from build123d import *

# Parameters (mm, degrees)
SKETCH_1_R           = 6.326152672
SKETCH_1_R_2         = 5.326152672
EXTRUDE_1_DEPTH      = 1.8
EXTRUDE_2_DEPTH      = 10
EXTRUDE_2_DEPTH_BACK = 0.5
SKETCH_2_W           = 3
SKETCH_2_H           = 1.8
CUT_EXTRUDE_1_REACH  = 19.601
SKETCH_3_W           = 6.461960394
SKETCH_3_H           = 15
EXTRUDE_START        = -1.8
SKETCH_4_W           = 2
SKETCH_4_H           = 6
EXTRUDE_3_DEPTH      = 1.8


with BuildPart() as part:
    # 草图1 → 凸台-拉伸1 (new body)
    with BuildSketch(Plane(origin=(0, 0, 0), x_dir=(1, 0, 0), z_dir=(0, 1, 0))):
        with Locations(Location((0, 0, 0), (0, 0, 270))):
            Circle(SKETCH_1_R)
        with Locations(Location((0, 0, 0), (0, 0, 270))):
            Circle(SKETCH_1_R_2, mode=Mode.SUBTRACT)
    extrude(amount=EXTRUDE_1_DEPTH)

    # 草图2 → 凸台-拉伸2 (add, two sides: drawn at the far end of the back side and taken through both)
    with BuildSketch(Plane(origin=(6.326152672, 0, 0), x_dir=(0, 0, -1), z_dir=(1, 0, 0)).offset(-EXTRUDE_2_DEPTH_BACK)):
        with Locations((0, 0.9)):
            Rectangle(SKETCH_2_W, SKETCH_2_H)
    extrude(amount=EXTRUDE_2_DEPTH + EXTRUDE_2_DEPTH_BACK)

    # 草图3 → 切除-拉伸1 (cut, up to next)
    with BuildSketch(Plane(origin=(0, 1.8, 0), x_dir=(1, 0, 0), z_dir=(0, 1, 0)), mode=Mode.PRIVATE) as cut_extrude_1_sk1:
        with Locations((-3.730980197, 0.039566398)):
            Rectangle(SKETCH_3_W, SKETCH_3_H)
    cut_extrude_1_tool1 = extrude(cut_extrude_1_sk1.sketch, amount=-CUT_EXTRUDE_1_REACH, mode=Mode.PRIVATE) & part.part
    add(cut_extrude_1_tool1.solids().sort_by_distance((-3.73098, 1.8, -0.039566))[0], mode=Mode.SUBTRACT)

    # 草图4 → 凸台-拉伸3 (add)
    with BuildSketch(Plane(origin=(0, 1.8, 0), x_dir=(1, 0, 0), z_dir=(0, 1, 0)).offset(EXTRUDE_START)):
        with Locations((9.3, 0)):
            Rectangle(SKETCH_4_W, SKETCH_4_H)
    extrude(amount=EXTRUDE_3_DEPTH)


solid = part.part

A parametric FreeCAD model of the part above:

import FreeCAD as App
import Part
import Sketcher

V = App.Vector


def add_polygon(sketch, points):
    """Adds a closed chain of lines whose ends are joined by coincident constraints."""
    first, n = sketch.GeometryCount, len(points)
    for a, b in zip(points, points[1:] + points[:1]):
        sketch.addGeometry(Part.LineSegment(App.Vector(*a, 0), App.Vector(*b, 0)), False)
    for i in range(n):
        sketch.addConstraint(Sketcher.Constraint("Coincident", first + i, 2, first + (i + 1) % n, 1))

doc = App.newDocument("Part")
body = doc.addObject("PartDesign::Body", "Body")

# Sketch on XZ plane
sketch1 = body.newObject("Sketcher::SketchObject", "Sketch")
sketch1.AttachmentSupport = (doc.getObject("XZ_Plane"), [""])
sketch1.MapMode = "FlatFace"
sketch1.addGeometry([
    Part.Circle(V(0, 0, 0), V(0, 0, 1), 6),
    Part.Circle(V(0, 0, 0), V(0, 0, 1), 5),
], False)
sketch1.addConstraint([
    Sketcher.Constraint("Coincident", 0, 3, -1, 1),
    Sketcher.Constraint("Coincident", 1, 3, -1, 1),
    Sketcher.Constraint("Diameter", 0, 12.652305),
    Sketcher.Constraint("Diameter", 1, 10.652305),
])
pad1 = body.newObject("PartDesign::Pad", "Pad")
pad1.Profile = sketch1
pad1.Length = 1.8
pad1.Reversed = True

# Sketch on YZ plane
sketch2 = body.newObject("Sketcher::SketchObject", "Sketch001")
sketch2.AttachmentSupport = (doc.getObject("YZ_Plane"), [""])
sketch2.MapMode = "FlatFace"
sketch2.AttachmentOffset = App.Placement(V(0, 0, 6.326153), App.Rotation())
add_polygon(sketch2, [(1.8, 1.5), (0, 1.5), (0, -1.5), (1.8, -1.5)])  # lines 0-3
sketch2.addConstraint([
    Sketcher.Constraint("Horizontal", 0),
    Sketcher.Constraint("Vertical", 1),
    Sketcher.Constraint("Horizontal", 2),
    Sketcher.Constraint("Vertical", 3),
    Sketcher.Constraint("Symmetric", 0, 2, 1, 2, -1, 1),
    Sketcher.Constraint("DistanceY", 1, 2, 1, 1, 3.0),
    Sketcher.Constraint("DistanceX", 0, 2, 0, 1, 1.8),
])
pad2 = body.newObject("PartDesign::Pad", "Pad001")
pad2.Profile = sketch2
pad2.Type = "TwoLengths"
pad2.Length = 10
pad2.Length2 = 0.5

# Sketch on XZ plane
sketch3 = body.newObject("Sketcher::SketchObject", "Sketch002")
sketch3.AttachmentSupport = (doc.getObject("XZ_Plane"), [""])
sketch3.MapMode = "FlatFace"
sketch3.AttachmentOffset = App.Placement(V(0, 0, -1.8), App.Rotation())
add_polygon(sketch3, [(-7, -8), (-7, 7), (0, 7), (0, -8)])  # lines 0-3
sketch3.addConstraint([
    Sketcher.Constraint("Vertical", 0),
    Sketcher.Constraint("Horizontal", 1),
    Sketcher.Constraint("Vertical", 2),
    Sketcher.Constraint("Horizontal", 3),
    Sketcher.Constraint("DistanceY", 0, 1, 0, 2, 15.0),
    Sketcher.Constraint("DistanceX", 1, 2, -1, 1, 0.5),
    Sketcher.Constraint("DistanceX", 1, 1, 1, 2, 6.46196),
    Sketcher.Constraint("DistanceY", -1, 1, 0, 2, 7.460434),
])
pocket1 = body.newObject("PartDesign::Pocket", "Pocket")
pocket1.Profile = sketch3
pocket1.Length = 1.8
pocket1.Reversed = True

# Sketch on XZ plane
sketch4 = body.newObject("Sketcher::SketchObject", "Sketch003")
sketch4.AttachmentSupport = (doc.getObject("XZ_Plane"), [""])
sketch4.MapMode = "FlatFace"
add_polygon(sketch4, [(8.3, -3), (8.3, 3), (10.3, 3), (10.3, -3)])  # lines 0-3
sketch4.addConstraint([
    Sketcher.Constraint("Vertical", 0),
    Sketcher.Constraint("Horizontal", 1),
    Sketcher.Constraint("Vertical", 2),
    Sketcher.Constraint("Horizontal", 3),
    Sketcher.Constraint("DistanceX", 1, 1, 1, 2, 2.0),
    Sketcher.Constraint("DistanceY", 0, 1, 0, 2, 6.0),
    Sketcher.Constraint("DistanceY", -1, 1, 0, 2, 3.0),
    Sketcher.Constraint("DistanceX", -1, 1, 0, 2, 8.3),
])
pad3 = body.newObject("PartDesign::Pad", "Pad002")
pad3.Profile = sketch4
pad3.Length = 1.8
pad3.Reversed = True

doc.recompute()
